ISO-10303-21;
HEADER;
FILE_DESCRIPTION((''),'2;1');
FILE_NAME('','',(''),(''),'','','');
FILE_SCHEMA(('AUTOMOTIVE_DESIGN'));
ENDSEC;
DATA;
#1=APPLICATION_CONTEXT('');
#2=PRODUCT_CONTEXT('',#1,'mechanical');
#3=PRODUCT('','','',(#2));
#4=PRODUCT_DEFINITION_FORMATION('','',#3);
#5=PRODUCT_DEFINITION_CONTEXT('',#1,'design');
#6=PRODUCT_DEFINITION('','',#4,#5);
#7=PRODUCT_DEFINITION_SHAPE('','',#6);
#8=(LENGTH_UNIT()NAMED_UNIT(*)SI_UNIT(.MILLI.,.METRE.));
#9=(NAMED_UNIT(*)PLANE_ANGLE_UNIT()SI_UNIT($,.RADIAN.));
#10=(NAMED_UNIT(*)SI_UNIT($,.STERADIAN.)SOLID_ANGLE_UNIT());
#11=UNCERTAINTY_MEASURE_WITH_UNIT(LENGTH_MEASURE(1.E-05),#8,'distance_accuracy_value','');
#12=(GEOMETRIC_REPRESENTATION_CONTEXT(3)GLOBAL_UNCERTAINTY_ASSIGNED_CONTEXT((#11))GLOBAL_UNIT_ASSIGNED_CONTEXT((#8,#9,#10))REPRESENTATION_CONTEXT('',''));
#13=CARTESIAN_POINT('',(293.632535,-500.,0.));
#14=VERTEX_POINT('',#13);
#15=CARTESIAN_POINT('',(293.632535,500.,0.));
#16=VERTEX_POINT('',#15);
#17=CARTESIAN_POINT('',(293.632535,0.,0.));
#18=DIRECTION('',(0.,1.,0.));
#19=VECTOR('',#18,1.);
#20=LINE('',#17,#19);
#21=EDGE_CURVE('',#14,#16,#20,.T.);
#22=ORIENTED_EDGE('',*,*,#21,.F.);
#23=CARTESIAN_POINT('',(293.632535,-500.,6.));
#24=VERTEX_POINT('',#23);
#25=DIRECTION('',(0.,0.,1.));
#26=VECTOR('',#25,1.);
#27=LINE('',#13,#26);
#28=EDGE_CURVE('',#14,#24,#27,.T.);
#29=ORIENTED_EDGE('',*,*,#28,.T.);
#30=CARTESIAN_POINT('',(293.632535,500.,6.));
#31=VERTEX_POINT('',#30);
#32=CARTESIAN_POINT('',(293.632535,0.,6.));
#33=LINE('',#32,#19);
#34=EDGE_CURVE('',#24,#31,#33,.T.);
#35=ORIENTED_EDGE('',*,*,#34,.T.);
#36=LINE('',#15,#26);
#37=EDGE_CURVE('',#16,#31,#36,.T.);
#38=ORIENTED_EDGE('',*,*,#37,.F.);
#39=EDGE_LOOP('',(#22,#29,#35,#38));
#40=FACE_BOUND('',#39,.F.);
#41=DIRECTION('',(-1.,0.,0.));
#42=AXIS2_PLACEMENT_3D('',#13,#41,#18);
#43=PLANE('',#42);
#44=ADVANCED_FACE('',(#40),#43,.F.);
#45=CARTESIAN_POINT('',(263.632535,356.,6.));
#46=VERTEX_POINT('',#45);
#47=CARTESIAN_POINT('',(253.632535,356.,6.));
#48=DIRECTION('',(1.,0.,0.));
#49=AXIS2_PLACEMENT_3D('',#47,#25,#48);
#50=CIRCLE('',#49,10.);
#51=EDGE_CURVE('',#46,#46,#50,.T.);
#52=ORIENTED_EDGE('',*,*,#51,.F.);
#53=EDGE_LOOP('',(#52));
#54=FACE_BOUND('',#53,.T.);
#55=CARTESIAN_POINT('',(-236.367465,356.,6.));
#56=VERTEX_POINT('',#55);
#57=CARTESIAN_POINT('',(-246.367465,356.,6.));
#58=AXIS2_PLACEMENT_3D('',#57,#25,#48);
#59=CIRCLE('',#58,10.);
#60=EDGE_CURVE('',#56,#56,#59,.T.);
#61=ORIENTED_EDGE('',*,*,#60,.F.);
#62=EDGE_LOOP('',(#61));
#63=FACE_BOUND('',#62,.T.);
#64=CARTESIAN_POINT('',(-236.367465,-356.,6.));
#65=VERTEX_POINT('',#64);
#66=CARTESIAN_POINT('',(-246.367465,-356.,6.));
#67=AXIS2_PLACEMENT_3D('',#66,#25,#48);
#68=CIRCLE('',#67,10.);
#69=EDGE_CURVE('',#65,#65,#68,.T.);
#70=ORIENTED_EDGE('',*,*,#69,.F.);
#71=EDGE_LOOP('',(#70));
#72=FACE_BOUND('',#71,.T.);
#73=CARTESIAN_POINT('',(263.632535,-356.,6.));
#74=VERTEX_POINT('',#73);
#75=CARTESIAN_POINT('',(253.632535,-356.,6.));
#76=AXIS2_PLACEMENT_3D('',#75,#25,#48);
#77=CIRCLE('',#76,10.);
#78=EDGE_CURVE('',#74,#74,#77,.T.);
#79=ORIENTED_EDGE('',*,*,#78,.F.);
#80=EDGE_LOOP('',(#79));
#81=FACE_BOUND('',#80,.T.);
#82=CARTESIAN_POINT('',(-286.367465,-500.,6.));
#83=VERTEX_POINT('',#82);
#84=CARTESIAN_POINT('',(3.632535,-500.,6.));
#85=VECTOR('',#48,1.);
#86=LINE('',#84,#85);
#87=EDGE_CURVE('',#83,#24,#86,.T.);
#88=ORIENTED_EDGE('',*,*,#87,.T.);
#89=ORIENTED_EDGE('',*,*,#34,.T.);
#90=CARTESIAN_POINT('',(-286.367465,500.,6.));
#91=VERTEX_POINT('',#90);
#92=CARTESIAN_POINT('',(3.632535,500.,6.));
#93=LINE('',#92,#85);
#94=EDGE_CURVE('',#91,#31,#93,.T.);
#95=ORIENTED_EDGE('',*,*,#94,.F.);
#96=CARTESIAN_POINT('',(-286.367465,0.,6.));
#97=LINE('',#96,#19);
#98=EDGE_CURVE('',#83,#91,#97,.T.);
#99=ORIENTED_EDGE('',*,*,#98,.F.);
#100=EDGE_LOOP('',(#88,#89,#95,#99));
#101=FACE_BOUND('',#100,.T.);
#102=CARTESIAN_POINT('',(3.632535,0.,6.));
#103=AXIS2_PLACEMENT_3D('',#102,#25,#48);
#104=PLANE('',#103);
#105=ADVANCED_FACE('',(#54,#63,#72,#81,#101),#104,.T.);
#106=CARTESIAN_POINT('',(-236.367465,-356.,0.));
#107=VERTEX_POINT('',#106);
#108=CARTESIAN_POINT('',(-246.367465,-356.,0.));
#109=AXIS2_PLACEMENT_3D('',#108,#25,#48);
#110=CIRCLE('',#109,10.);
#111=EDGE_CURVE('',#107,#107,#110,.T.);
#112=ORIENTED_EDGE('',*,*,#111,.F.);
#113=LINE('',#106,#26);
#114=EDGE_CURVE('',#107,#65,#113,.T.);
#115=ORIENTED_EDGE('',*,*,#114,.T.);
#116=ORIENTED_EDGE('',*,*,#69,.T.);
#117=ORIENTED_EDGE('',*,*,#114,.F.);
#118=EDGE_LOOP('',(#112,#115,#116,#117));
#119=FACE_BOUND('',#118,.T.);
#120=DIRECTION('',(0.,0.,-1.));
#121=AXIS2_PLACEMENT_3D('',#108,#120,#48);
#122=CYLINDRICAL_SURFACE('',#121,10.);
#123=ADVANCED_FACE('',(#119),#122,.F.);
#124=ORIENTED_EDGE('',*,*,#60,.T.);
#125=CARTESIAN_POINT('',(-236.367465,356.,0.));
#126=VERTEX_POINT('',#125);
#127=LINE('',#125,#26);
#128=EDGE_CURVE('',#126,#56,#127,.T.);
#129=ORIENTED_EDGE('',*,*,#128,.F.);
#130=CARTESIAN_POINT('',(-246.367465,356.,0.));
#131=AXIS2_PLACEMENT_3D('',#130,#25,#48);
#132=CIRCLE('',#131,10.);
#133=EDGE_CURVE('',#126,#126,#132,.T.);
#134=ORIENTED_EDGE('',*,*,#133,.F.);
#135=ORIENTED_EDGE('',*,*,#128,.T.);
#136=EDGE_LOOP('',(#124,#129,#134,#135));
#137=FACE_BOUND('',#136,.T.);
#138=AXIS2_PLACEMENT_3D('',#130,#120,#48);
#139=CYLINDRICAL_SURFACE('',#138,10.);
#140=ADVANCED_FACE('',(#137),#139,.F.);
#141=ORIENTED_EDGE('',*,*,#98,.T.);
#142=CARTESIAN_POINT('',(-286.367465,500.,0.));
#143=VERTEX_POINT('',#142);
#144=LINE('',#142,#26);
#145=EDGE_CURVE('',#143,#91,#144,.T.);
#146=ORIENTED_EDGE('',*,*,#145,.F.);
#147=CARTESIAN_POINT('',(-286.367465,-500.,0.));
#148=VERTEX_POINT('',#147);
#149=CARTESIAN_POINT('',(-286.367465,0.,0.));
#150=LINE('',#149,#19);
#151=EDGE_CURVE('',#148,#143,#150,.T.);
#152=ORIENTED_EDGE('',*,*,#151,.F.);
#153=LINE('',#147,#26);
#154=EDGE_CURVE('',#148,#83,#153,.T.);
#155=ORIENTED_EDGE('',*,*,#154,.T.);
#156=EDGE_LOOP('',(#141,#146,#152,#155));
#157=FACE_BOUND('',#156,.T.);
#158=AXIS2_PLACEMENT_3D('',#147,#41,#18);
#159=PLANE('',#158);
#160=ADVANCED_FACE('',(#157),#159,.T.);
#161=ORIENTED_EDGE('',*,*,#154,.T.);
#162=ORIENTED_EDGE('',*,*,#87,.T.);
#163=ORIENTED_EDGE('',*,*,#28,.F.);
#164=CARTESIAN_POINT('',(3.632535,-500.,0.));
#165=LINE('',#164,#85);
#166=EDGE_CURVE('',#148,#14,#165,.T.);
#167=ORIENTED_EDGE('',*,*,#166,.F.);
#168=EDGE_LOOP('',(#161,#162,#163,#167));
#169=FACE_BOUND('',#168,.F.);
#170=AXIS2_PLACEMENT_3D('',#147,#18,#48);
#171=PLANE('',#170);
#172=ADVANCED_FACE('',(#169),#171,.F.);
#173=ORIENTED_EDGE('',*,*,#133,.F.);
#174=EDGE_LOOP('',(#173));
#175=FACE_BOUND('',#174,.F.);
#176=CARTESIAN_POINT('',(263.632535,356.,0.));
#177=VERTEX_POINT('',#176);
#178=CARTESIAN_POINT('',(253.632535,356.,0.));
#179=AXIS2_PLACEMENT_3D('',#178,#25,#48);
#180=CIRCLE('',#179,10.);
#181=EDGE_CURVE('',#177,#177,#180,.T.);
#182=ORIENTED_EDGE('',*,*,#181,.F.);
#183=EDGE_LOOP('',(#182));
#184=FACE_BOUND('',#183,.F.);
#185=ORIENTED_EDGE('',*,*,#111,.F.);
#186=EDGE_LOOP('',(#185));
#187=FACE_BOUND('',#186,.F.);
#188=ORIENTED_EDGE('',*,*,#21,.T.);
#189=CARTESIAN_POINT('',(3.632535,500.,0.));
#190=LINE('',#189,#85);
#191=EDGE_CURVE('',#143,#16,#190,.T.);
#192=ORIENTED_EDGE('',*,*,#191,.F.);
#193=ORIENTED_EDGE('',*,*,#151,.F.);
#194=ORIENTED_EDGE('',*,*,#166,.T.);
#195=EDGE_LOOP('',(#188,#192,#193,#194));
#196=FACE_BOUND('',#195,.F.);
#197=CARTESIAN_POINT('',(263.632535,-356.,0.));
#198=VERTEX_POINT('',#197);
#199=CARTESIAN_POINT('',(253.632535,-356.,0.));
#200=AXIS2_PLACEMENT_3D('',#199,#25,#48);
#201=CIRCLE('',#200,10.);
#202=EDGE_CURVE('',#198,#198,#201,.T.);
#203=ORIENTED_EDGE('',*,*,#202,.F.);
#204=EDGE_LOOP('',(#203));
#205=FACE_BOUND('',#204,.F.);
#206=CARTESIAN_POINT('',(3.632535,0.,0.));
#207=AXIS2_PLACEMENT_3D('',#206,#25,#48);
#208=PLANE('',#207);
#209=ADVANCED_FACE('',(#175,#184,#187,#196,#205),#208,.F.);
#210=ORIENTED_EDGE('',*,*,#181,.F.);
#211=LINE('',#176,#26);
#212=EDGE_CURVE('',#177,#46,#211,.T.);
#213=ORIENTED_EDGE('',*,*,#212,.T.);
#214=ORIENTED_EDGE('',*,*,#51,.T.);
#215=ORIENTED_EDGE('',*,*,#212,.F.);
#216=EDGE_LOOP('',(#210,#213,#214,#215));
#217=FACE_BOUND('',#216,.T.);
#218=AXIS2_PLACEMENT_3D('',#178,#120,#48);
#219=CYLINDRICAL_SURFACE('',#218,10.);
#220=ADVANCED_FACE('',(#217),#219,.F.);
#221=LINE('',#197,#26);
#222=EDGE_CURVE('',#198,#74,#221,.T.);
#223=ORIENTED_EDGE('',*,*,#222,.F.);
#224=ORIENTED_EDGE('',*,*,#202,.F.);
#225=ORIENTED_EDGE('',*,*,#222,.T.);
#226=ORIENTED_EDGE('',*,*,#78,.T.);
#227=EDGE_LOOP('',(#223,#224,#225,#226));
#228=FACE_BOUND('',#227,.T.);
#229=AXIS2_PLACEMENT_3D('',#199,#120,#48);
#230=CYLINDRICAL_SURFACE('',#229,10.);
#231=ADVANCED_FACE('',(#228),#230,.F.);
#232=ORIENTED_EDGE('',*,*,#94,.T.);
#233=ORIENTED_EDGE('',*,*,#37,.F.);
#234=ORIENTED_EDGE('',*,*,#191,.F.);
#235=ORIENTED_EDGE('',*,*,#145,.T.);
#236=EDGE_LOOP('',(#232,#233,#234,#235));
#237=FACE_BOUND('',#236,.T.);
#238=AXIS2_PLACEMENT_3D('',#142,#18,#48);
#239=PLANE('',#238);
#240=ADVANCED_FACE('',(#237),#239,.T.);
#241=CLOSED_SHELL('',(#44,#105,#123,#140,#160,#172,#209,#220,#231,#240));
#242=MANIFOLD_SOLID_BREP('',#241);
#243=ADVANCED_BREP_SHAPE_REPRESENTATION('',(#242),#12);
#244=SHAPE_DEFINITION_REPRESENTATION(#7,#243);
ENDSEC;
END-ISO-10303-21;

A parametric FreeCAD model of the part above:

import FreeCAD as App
import Part
import Sketcher
from FreeCAD import Vector
Q = App.Units.Quantity

doc = App.newDocument("Part")
body = doc.addObject("PartDesign::Body", "Body")

# Sketch on XY plane
sketch1 = doc.addObject("Sketcher::SketchObject", "Sketch")
body.addObject(sketch1)
sketch1.AttachmentSupport = (doc.XY_Plane, [""])
sketch1.MapMode = "FlatFace"
sketch1.addGeometry([
    Part.LineSegment(Vector(-286, 500, 0), Vector(-286, -500, 0)),  # 0
    Part.LineSegment(Vector(-286, -500, 0), Vector(294, -500, 0)),  # 1
    Part.LineSegment(Vector(294, -500, 0), Vector(294, 500, 0)),  # 2
    Part.LineSegment(Vector(294, 500, 0), Vector(-286, 500, 0)),  # 3
    Part.Circle(Vector(-246, -356, 0), Vector(0, 0, 1), 10),  # 4
    Part.Circle(Vector(254, -356, 0), Vector(0, 0, 1), 10),  # 5
    Part.Circle(Vector(-246, 356, 0), Vector(0, 0, 1), 10),  # 6
    Part.Circle(Vector(254, 356, 0), Vector(0, 0, 1), 10),  # 7
], False)
sketch1.addConstraint([
    Sketcher.Constraint("Coincident", 0, 2, 1, 1),
    Sketcher.Constraint("Coincident", 1, 2, 2, 1),
    Sketcher.Constraint("Coincident", 2, 2, 3, 1),
    Sketcher.Constraint("Coincident", 3, 2, 0, 1),
    Sketcher.Constraint("Vertical", 0),
    Sketcher.Constraint("Horizontal", 1),
    Sketcher.Constraint("Vertical", 2),
    Sketcher.Constraint("Horizontal", 3),
    Sketcher.Constraint("Equal", 4, 5),
    Sketcher.Constraint("Equal", 5, 6),
    Sketcher.Constraint("Equal", 6, 7),
    Sketcher.Constraint("Symmetric", 4, 3, 6, 3, -1),
    Sketcher.Constraint("Symmetric", 5, 3, 7, 3, -1),
    Sketcher.Constraint("Horizontal", 4, 3, 5, 3),
    Sketcher.Constraint("Diameter", 4, Q("20 mm")),
    Sketcher.Constraint("DistanceX", 1, 1, 1, 2, Q("580 mm")),
    Sketcher.Constraint("DistanceY", 0, 2, 0, 1, Q("1000 mm")),
    Sketcher.Constraint("DistanceY", 4, 3, -1, 1, Q("356 mm")),
    Sketcher.Constraint("DistanceY", 0, 2, -1, 1, Q("500 mm")),
    Sketcher.Constraint("DistanceX", 4, 3, 5, 3, Q("500 mm")),
    Sketcher.Constraint("DistanceX", 0, 2, 4, 3, Q("40 mm")),
    Sketcher.Constraint("DistanceX", 4, 3, -1, 1, Q("246.367465 mm")),
])
pad1 = doc.addObject("PartDesign::Pad", "Pad")
body.addObject(pad1)
pad1.Profile = sketch1
pad1.Length = 6

doc.recompute()
